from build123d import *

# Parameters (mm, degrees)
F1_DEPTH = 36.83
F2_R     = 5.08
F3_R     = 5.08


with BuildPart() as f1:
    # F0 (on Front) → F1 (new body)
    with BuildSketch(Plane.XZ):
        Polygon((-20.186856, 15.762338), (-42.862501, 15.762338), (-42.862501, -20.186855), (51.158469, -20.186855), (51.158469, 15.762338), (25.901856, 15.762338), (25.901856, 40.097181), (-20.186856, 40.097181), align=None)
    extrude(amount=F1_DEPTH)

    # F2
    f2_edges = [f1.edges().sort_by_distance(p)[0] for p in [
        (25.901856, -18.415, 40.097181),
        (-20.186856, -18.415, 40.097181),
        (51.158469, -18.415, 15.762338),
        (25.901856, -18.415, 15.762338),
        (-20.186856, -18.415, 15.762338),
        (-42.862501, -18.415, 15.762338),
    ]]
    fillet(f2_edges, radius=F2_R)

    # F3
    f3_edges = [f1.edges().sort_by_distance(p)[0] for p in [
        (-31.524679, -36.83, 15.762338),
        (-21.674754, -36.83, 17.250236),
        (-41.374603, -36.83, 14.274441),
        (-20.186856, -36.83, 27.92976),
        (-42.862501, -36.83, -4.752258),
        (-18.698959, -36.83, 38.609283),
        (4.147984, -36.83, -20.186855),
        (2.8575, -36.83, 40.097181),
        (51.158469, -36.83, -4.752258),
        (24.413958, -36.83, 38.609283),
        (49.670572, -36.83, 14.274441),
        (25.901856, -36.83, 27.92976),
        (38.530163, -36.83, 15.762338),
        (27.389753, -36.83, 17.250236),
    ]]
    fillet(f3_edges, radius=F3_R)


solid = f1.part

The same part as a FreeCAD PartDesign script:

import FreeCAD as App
import Part
import Sketcher

V = App.Vector
Q = App.Units.Quantity


def edges_at(feature, points):
    """Names of the edges that pass closest to the given points."""
    edges = feature.Shape.Edges
    near = lambda p: min(range(len(edges)), key=lambda i: edges[i].distToShape(Part.Vertex(*p))[0])
    return sorted({f"Edge{near(p) + 1}" for p in points})


def add_polygon(sketch, points):
    """Adds a closed chain of lines whose ends are joined by coincident constraints."""
    first, n = sketch.GeometryCount, len(points)
    for a, b in zip(points, points[1:] + points[:1]):
        sketch.addGeometry(Part.LineSegment(App.Vector(*a, 0), App.Vector(*b, 0)), False)
    for i in range(n):
        sketch.addConstraint(Sketcher.Constraint("Coincident", first + i, 2, first + (i + 1) % n, 1))

doc = App.newDocument("Part")
params = doc.addObject("Spreadsheet::Sheet", "Params")
for row, (alias, value) in enumerate([
    ("pad1_length", "1.45 in"),
    ("fillet_radius", "0.2 in"),
    ("fillet2_radius", "0.2 in"),
], start=1):
    params.set(f"A{row}", alias)
    params.set(f"B{row}", "=" + value)
    params.setAlias(f"B{row}", alias)

body = doc.addObject("PartDesign::Body", "Body")

sketch1 = body.newObject("Sketcher::SketchObject", "Sketch")
sketch1.AttachmentSupport = (doc.getObject("XZ_Plane"), [""])
sketch1.MapMode = "FlatFace"
add_polygon(sketch1, [(-20, 16), (-43, 16), (-43, -20), (51, -20), (51, 16), (26, 16), (26, 40), (-20, 40)])
sketch1.addConstraint(Sketcher.Constraint("Horizontal", 0))
sketch1.addConstraint(Sketcher.Constraint("Vertical", 1))
sketch1.addConstraint(Sketcher.Constraint("Horizontal", 2))
sketch1.addConstraint(Sketcher.Constraint("Vertical", 3))
sketch1.addConstraint(Sketcher.Constraint("Horizontal", 4))
sketch1.addConstraint(Sketcher.Constraint("Vertical", 5))
sketch1.addConstraint(Sketcher.Constraint("Horizontal", 6))
sketch1.addConstraint(Sketcher.Constraint("Vertical", 7))
sketch1.addConstraint(Sketcher.Constraint("Horizontal", 0, 2, 3, 2))
sketch1.addConstraint(Sketcher.Constraint("DistanceX", 0, 2, -1, 1, Q("1.6875 in")))
sketch1.addConstraint(Sketcher.Constraint("DistanceX", 2, 1, 2, 2, Q("94.02097 mm")))
sketch1.addConstraint(Sketcher.Constraint("DistanceX", 0, 2, 0, 1, Q("22.675645 mm")))
sketch1.addConstraint(Sketcher.Constraint("DistanceX", 4, 2, 4, 1, Q("25.256613 mm")))
sketch1.addConstraint(Sketcher.Constraint("DistanceY", 1, 2, 1, 1, Q("35.949193 mm")))
sketch1.addConstraint(Sketcher.Constraint("DistanceY", 5, 1, 5, 2, Q("24.334843 mm")))
sketch1.addConstraint(Sketcher.Constraint("DistanceY", -1, 1, 5, 2, Q("40.097181 mm")))
pad1 = body.newObject("PartDesign::Pad", "Pad")
pad1.Profile = sketch1
pad1.setExpression("Length", "Params.pad1_length")
doc.recompute()

fillet = body.newObject("PartDesign::Fillet", "Fillet")
fillet.Base = (pad1, edges_at(pad1, [
    (25.902, -18.415, 40.097),
    (-20.187, -18.415, 40.097),
    (51.158, -18.415, 15.762),
    (25.902, -18.415, 15.762),
    (-20.187, -18.415, 15.762),
    (-42.863, -18.415, 15.762),
]))
fillet.setExpression("Radius", "Params.fillet_radius")
doc.recompute()

fillet2 = body.newObject("PartDesign::Fillet", "Fillet001")
fillet2.Base = (fillet, edges_at(fillet, [
    (-31.525, -36.83, 15.762),
    (-21.675, -36.83, 17.25),
    (-41.375, -36.83, 14.274),
    (-20.187, -36.83, 27.93),
    (-42.863, -36.83, -4.752),
    (-18.699, -36.83, 38.609),
    (4.148, -36.83, -20.187),
    (2.857, -36.83, 40.097),
    (51.158, -36.83, -4.752),
    (24.414, -36.83, 38.609),
    (49.671, -36.83, 14.274),
    (25.902, -36.83, 27.93),
    (38.53, -36.83, 15.762),
    (27.39, -36.83, 17.25),
]))
fillet2.setExpression("Radius", "Params.fillet2_radius")

doc.recompute()
